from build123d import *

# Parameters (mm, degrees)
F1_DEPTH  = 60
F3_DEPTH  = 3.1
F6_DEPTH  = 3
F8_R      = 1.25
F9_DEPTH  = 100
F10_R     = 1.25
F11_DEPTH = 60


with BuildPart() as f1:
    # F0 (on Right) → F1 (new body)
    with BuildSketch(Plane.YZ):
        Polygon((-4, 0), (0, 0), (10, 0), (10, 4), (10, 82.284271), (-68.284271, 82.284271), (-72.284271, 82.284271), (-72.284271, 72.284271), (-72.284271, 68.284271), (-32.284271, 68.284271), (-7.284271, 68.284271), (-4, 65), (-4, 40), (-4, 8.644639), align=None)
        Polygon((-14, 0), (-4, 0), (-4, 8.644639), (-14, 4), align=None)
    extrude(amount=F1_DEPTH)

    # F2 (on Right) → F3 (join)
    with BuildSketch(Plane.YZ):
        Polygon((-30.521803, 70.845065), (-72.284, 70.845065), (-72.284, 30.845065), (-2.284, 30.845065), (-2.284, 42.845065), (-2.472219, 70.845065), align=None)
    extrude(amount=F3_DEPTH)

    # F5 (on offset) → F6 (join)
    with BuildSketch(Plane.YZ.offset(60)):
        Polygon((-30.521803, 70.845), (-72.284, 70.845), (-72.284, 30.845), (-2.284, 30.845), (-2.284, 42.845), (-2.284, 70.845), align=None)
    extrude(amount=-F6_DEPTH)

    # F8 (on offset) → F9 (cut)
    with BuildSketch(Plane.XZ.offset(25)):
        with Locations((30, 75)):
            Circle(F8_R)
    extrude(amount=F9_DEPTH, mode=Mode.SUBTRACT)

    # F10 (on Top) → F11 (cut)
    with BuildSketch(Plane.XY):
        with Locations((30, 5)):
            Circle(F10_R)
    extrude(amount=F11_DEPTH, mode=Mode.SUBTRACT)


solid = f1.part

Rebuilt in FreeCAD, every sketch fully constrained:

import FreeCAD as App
import Part
import Sketcher
Q = App.Units.Quantity


def add_polygon(sketch, points):
    """Adds a closed chain of lines whose ends are joined by coincident constraints."""
    first, n = sketch.GeometryCount, len(points)
    for a, b in zip(points, points[1:] + points[:1]):
        sketch.addGeometry(Part.LineSegment(App.Vector(*a, 0), App.Vector(*b, 0)), False)
    for i in range(n):
        sketch.addConstraint(Sketcher.Constraint("Coincident", first + i, 2, first + (i + 1) % n, 1))

doc = App.newDocument("Part")
params = doc.addObject("Spreadsheet::Sheet", "Params")
for row, (alias, value) in enumerate([
    ("sketch1_width", "65 mm"),
    ("sketch1_width2", "24 mm"),
    ("sketch1_height", "14 mm"),
    ("sketch1_height2", "4 mm"),
    ("pad1_length", "60 mm"),
    ("sketch2_width", "70 mm"),
    ("sketch2_height", "40 mm"),
    ("sketch2_height2", "12 mm"),
    ("pad2_length", "3.1 mm"),
    ("sketch3_width", "70 mm"),
    ("sketch3_height", "40 mm"),
    ("pad3_length", "3 mm"),
    ("sketch4_diameter", "2.5 mm"),
    ("pocket1_length", "100 mm"),
    ("sketch5_diameter", "2.5 mm"),
    ("pocket2_length", "60 mm"),
], start=1):
    params.set(f"A{row}", alias)
    params.set(f"B{row}", "=" + value)
    params.setAlias(f"B{row}", alias)

body = doc.addObject("PartDesign::Body", "Body")

# Sketch on YZ plane
sketch1 = body.newObject("Sketcher::SketchObject", "Sketch")
sketch1.AttachmentSupport = (doc.getObject("YZ_Plane"), [""])
sketch1.MapMode = "FlatFace"
add_polygon(sketch1, [(10, 0), (10, 82.3), (-72.3, 82.3), (-72.3, 68.3), (-7.3, 68.3), (-4, 65), (-4, 8.6), (-14, 4), (-14, 0)])  # lines 0-8
sketch1.addConstraint([
    Sketcher.Constraint("Vertical", 0),
    Sketcher.Constraint("Horizontal", 1),
    Sketcher.Constraint("Vertical", 2),
    Sketcher.Constraint("Horizontal", 3),
    Sketcher.Constraint("Vertical", 5),
    Sketcher.Constraint("Vertical", 7),
    Sketcher.Constraint("Horizontal", 8),
    Sketcher.Constraint("PointOnObject", 7, 2, -1),
    Sketcher.Constraint("Equal", 1, 0),
    Sketcher.Constraint("DistanceX", 3, 1, 3, 2, Q("65 mm")),
    Sketcher.Constraint("DistanceX", 8, 1, 8, 2, Q("24 mm")),
    Sketcher.Constraint("DistanceY", 2, 2, 2, 1, Q("14 mm")),
    Sketcher.Constraint("DistanceY", 7, 2, 7, 1, Q("4 mm")),
    Sketcher.Constraint("Angle", 4, Q("-45 deg")),
    Sketcher.Constraint("DistanceX", -1, 1, 0, 2, Q("10 mm")),
    Sketcher.Constraint("DistanceX", 4, 2, -1, 1, Q("4 mm")),
    Sketcher.Constraint("Distance", 6, Q("11.026 mm")),
    Sketcher.Constraint("DistanceX", 1, 2, 1, 1, Q("82.284271 mm")),
])
sketch1.setExpression("Constraints[18]", "Params.sketch1_width")
sketch1.setExpression("Constraints[19]", "Params.sketch1_width2")
sketch1.setExpression("Constraints[20]", "Params.sketch1_height")
sketch1.setExpression("Constraints[21]", "Params.sketch1_height2")
pad1 = body.newObject("PartDesign::Pad", "Pad")
pad1.Profile = sketch1
pad1.setExpression("Length", "Params.pad1_length")

# Sketch on YZ plane
sketch2 = body.newObject("Sketcher::SketchObject", "Sketch001")
sketch2.AttachmentSupport = (doc.getObject("YZ_Plane"), [""])
sketch2.MapMode = "FlatFace"
add_polygon(sketch2, [(-72, 71), (-72, 31), (-2, 31), (-2, 43), (-2, 71)])  # lines 0-4
sketch2.addConstraint([
    Sketcher.Constraint("Vertical", 0),
    Sketcher.Constraint("Horizontal", 1),
    Sketcher.Constraint("Vertical", 2),
    Sketcher.Constraint("Horizontal", 4),
    Sketcher.Constraint("DistanceX", 1, 1, 1, 2, Q("70 mm")),
    Sketcher.Constraint("DistanceY", 0, 2, 0, 1, Q("40 mm")),
    Sketcher.Constraint("DistanceY", 2, 1, 2, 2, Q("12 mm")),
    Sketcher.Constraint("DistanceX", 0, 2, -1, 1, Q("72.284 mm")),
    Sketcher.Constraint("DistanceX", 4, 2, 4, 1, Q("69.811781 mm")),
    Sketcher.Constraint("DistanceY", -1, 1, 0, 2, Q("30.845065 mm")),
])
sketch2.setExpression("Constraints[9]", "Params.sketch2_width")
sketch2.setExpression("Constraints[10]", "Params.sketch2_height")
sketch2.setExpression("Constraints[11]", "Params.sketch2_height2")
pad2 = body.newObject("PartDesign::Pad", "Pad001")
pad2.Profile = sketch2
pad2.setExpression("Length", "Params.pad2_length")

# Sketch on YZ plane
sketch3 = body.newObject("Sketcher::SketchObject", "Sketch002")
sketch3.AttachmentSupport = (doc.getObject("YZ_Plane"), [""])
sketch3.MapMode = "FlatFace"
sketch3.AttachmentOffset = App.Placement(App.Vector(0, 0, 60), App.Rotation())
add_polygon(sketch3, [(-72, 71), (-72, 31), (-2, 31), (-2, 71)])  # lines 0-3
sketch3.addConstraint([
    Sketcher.Constraint("Vertical", 0),
    Sketcher.Constraint("Horizontal", 1),
    Sketcher.Constraint("Vertical", 2),
    Sketcher.Constraint("Horizontal", 3),
    Sketcher.Constraint("DistanceX", 1, 1, 1, 2, Q("70 mm")),
    Sketcher.Constraint("DistanceY", 0, 2, 0, 1, Q("40 mm")),
    Sketcher.Constraint("DistanceX", 0, 2, -1, 1, Q("72.284 mm")),
    Sketcher.Constraint("DistanceY", -1, 1, 0, 2, Q("30.845 mm")),
])
sketch3.setExpression("Constraints[8]", "Params.sketch3_width")
sketch3.setExpression("Constraints[9]", "Params.sketch3_height")
pad3 = body.newObject("PartDesign::Pad", "Pad002")
pad3.Profile = sketch3
pad3.setExpression("Length", "Params.pad3_length")
pad3.Reversed = True

# Sketch on XZ plane
sketch4 = body.newObject("Sketcher::SketchObject", "Sketch003")
sketch4.AttachmentSupport = (doc.getObject("XZ_Plane"), [""])
sketch4.MapMode = "FlatFace"
sketch4.AttachmentOffset = App.Placement(App.Vector(0, 0, 25), App.Rotation())
sketch4.addGeometry(Part.Circle(App.Vector(30, 75, 0), App.Vector(0, 0, 1), 1.2), False)
sketch4.addConstraint([
    Sketcher.Constraint("Diameter", 0, Q("2.5 mm")),
    Sketcher.Constraint("DistanceX", -1, 1, 0, 3, Q("30 mm")),
    Sketcher.Constraint("DistanceY", -1, 1, 0, 3, Q("75 mm")),
])
sketch4.setExpression("Constraints[0]", "Params.sketch4_diameter")
pocket1 = body.newObject("PartDesign::Pocket", "Pocket")
pocket1.Profile = sketch4
pocket1.setExpression("Length", "Params.pocket1_length")
pocket1.Reversed = True

# Sketch on XY plane
sketch5 = body.newObject("Sketcher::SketchObject", "Sketch004")
sketch5.AttachmentSupport = (doc.getObject("XY_Plane"), [""])
sketch5.MapMode = "FlatFace"
sketch5.addGeometry(Part.Circle(App.Vector(30, 5, 0), App.Vector(0, 0, 1), 1.2), False)
sketch5.addConstraint([
    Sketcher.Constraint("Diameter", 0, Q("2.5 mm")),
    Sketcher.Constraint("DistanceX", -1, 1, 0, 3, Q("30 mm")),
    Sketcher.Constraint("DistanceY", -1, 1, 0, 3, Q("5 mm")),
])
sketch5.setExpression("Constraints[0]", "Params.sketch5_diameter")
pocket2 = body.newObject("PartDesign::Pocket", "Pocket001")
pocket2.Profile = sketch5
pocket2.setExpression("Length", "Params.pocket2_length")
pocket2.Reversed = True

doc.recompute()
